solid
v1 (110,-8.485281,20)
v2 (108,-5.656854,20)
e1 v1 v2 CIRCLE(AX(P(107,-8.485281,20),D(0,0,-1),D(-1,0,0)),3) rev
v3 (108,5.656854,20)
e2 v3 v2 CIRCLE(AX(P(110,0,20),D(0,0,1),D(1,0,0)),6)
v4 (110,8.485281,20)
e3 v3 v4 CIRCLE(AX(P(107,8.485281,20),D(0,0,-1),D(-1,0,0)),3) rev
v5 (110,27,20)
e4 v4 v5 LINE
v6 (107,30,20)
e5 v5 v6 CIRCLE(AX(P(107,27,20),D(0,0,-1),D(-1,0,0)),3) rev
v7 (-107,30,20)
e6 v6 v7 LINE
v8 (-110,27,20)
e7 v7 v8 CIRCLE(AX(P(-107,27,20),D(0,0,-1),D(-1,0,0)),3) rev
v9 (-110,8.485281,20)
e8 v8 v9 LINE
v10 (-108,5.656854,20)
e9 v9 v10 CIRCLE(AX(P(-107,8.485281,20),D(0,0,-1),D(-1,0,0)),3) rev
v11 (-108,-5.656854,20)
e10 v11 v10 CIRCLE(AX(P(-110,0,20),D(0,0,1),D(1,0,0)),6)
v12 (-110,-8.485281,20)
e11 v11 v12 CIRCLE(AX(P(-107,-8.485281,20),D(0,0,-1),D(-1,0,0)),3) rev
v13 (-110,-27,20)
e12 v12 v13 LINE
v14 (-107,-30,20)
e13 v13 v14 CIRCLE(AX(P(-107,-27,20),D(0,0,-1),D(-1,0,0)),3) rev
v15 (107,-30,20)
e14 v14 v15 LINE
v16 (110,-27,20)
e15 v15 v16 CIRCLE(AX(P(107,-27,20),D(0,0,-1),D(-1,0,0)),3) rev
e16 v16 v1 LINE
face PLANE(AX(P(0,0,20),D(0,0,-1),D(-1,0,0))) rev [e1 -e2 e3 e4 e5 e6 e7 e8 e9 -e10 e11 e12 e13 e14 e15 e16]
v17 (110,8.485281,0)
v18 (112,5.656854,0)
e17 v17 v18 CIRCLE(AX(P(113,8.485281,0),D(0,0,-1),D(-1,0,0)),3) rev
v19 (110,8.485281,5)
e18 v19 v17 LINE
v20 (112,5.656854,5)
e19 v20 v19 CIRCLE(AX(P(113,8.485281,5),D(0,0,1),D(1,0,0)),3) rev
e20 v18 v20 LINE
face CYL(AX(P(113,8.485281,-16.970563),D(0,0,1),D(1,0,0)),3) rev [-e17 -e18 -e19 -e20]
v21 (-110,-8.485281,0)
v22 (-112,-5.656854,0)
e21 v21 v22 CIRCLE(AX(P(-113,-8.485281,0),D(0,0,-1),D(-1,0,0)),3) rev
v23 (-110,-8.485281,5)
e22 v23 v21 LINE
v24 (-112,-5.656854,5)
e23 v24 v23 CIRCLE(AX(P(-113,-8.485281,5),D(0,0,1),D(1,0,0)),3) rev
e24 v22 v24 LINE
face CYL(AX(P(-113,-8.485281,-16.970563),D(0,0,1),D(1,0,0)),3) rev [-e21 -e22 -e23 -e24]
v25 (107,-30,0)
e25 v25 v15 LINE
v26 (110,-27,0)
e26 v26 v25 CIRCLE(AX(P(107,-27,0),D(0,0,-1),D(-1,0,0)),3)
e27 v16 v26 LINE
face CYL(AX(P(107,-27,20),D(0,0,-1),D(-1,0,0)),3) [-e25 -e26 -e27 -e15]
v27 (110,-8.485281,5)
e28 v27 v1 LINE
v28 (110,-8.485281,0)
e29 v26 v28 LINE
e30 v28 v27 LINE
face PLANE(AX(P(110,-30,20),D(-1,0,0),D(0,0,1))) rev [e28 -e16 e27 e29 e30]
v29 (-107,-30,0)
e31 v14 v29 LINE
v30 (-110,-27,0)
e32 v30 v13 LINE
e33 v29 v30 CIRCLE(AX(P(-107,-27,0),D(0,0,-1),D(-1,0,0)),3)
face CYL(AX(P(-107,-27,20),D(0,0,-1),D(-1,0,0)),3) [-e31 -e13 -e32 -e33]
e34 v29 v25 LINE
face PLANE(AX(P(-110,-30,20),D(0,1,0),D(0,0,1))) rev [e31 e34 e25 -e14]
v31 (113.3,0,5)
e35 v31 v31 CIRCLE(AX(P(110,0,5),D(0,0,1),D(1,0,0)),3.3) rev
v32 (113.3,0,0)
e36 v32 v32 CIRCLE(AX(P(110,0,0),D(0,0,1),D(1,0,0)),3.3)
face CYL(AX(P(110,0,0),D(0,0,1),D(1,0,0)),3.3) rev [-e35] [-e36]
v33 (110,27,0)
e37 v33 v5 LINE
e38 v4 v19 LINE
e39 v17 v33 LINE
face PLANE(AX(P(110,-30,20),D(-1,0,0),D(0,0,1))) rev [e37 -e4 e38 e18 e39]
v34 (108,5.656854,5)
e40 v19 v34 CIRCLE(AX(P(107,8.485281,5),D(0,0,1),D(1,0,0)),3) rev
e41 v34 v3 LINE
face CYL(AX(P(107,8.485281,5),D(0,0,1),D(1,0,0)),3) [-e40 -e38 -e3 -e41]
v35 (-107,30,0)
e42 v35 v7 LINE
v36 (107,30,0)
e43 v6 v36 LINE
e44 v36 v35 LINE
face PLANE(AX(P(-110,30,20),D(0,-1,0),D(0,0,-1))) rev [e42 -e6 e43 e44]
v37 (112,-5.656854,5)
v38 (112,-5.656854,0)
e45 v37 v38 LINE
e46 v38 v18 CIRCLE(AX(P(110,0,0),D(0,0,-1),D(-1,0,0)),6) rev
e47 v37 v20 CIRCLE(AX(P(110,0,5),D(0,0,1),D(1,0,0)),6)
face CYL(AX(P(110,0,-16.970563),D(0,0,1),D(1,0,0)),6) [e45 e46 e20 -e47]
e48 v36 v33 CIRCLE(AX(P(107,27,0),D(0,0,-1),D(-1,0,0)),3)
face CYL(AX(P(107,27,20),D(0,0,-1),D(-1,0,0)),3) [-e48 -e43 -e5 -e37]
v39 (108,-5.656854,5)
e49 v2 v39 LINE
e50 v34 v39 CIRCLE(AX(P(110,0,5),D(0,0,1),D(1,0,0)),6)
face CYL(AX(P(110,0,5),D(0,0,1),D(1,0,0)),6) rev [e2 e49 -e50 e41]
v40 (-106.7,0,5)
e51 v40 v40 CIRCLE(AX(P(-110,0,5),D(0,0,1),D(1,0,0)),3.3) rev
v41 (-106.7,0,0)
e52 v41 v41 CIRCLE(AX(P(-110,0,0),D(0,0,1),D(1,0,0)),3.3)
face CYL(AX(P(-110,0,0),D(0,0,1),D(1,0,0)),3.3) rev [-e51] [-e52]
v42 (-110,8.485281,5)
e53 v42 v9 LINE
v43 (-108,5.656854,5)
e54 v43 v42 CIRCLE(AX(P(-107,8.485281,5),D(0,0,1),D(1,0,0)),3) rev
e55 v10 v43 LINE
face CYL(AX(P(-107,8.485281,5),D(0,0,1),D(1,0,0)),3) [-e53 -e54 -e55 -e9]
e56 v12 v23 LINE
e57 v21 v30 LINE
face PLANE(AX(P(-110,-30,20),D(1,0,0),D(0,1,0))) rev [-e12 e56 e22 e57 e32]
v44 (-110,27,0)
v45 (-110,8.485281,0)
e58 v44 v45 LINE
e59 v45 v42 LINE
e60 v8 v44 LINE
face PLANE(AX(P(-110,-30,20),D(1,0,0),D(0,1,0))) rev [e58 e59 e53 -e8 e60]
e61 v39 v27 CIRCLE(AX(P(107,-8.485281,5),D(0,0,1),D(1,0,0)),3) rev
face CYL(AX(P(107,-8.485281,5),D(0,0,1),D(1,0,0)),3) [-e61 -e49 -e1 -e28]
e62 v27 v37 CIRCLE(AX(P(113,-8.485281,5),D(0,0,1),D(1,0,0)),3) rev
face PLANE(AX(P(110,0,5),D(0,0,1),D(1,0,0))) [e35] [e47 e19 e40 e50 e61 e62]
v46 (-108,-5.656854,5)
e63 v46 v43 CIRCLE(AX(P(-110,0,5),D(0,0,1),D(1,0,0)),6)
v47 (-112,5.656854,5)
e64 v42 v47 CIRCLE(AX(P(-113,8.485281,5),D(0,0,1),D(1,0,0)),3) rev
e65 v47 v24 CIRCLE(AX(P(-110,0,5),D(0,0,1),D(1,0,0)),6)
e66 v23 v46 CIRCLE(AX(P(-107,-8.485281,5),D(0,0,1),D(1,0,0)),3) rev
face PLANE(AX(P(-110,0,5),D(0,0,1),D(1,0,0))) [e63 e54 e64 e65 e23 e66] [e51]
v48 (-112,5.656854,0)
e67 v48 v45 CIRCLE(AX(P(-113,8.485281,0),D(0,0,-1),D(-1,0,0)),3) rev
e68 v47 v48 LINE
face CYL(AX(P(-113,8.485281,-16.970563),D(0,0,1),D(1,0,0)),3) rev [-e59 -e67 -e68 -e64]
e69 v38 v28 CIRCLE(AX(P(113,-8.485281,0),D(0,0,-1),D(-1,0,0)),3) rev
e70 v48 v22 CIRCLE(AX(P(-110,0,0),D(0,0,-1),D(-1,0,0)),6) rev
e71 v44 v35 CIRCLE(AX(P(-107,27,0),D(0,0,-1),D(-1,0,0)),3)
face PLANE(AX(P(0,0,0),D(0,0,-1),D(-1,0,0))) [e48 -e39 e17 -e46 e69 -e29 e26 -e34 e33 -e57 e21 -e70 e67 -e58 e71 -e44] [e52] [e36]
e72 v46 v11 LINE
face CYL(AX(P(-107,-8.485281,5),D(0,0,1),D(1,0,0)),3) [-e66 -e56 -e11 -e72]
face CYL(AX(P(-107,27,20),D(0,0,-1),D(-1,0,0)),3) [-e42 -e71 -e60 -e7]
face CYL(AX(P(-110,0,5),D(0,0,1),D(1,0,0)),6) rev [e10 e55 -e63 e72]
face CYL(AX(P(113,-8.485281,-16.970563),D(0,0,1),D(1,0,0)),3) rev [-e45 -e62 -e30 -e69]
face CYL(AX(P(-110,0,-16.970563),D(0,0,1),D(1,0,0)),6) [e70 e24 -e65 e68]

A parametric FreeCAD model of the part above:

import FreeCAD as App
import Part
import Sketcher

V = App.Vector
Q = App.Units.Quantity


def edges_at(feature, points):
    """Names of the edges that pass closest to the given points."""
    edges = feature.Shape.Edges
    near = lambda p: min(range(len(edges)), key=lambda i: edges[i].distToShape(Part.Vertex(*p))[0])
    return sorted({f"Edge{near(p) + 1}" for p in points})


def add_polygon(sketch, points):
    """Adds a closed chain of lines whose ends are joined by coincident constraints."""
    first, n = sketch.GeometryCount, len(points)
    for a, b in zip(points, points[1:] + points[:1]):
        sketch.addGeometry(Part.LineSegment(App.Vector(*a, 0), App.Vector(*b, 0)), False)
    for i in range(n):
        sketch.addConstraint(Sketcher.Constraint("Coincident", first + i, 2, first + (i + 1) % n, 1))

doc = App.newDocument("Part")
body = doc.addObject("PartDesign::Body", "Body")

# Sketch on XY plane
sketch1 = doc.addObject("Sketcher::SketchObject", "Sketch")
body.addObject(sketch1)
sketch1.AttachmentSupport = (doc.XY_Plane, [""])
sketch1.MapMode = "FlatFace"
add_polygon(sketch1, [(-110, 30), (-110, -30), (110, -30), (110, 30)])  # lines 0-3
sketch1.addConstraint([
    Sketcher.Constraint("Vertical", 0),
    Sketcher.Constraint("Horizontal", 1),
    Sketcher.Constraint("Vertical", 2),
    Sketcher.Constraint("Horizontal", 3),
    Sketcher.Constraint("Symmetric", 0, 2, 2, 2, -1, 1),
    Sketcher.Constraint("DistanceX", 1, 1, 1, 2, Q("220 mm")),
    Sketcher.Constraint("DistanceY", 0, 2, 0, 1, Q("60 mm")),
])
pad1 = doc.addObject("PartDesign::Pad", "Pad")
body.addObject(pad1)
pad1.Profile = sketch1
pad1.Length = 20
doc.recompute()

fillet = doc.addObject("PartDesign::Fillet", "Fillet")
body.addObject(fillet)
fillet.Base = (pad1, edges_at(pad1, [
    (110, -30, 10),
    (-110, -30, 10),
    (-110, 30, 10),
    (110, 30, 10),
]))
fillet.Radius = 3

# Sketch on XY plane
sketch2 = doc.addObject("Sketcher::SketchObject", "Sketch001")
body.addObject(sketch2)
sketch2.AttachmentSupport = (doc.XY_Plane, [""])
sketch2.MapMode = "FlatFace"
sketch2.AttachmentOffset = App.Placement(V(0, 0, 20), App.Rotation())
sketch2.addGeometry([
    Part.Circle(V(-110, 0, 0), V(0, 0, 1), 6),
    Part.Circle(V(110, 0, 0), V(0, 0, 1), 6),
], False)
sketch2.addConstraint([
    Sketcher.Constraint("Equal", 0, 1),
    Sketcher.Constraint("Symmetric", 0, 3, 1, 3, -1, 1),
    Sketcher.Constraint("PointOnObject", 0, 3, -1),
    Sketcher.Constraint("Diameter", 0, Q("12 mm")),
    Sketcher.Constraint("DistanceX", 0, 3, -1, 1, Q("110 mm")),
])
pad2 = doc.addObject("PartDesign::Pad", "Pad001")
body.addObject(pad2)
pad2.Profile = sketch2
pad2.Length = 20
pad2.Reversed = True

# Sketch on XY plane
sketch3 = doc.addObject("Sketcher::SketchObject", "Sketch002")
body.addObject(sketch3)
sketch3.AttachmentSupport = (doc.XY_Plane, [""])
sketch3.MapMode = "FlatFace"
sketch3.AttachmentOffset = App.Placement(V(0, 0, 20), App.Rotation())
sketch3.addGeometry([
    Part.Circle(V(-110, 0, 0), V(0, 0, 1), 3.3),
    Part.Circle(V(110, 0, 0), V(0, 0, 1), 3.3),
], False)
sketch3.addConstraint([
    Sketcher.Constraint("Equal", 0, 1),
    Sketcher.Constraint("Symmetric", 0, 3, 1, 3, -1, 1),
    Sketcher.Constraint("PointOnObject", 0, 3, -1),
    Sketcher.Constraint("Diameter", 0, Q("6.6 mm")),
    Sketcher.Constraint("DistanceX", 0, 3, -1, 1, Q("110 mm")),
])
pocket1 = doc.addObject("PartDesign::Pocket", "Pocket")
body.addObject(pocket1)
pocket1.Profile = sketch3
pocket1.Length = 20

# Sketch on XY plane
sketch4 = doc.addObject("Sketcher::SketchObject", "Sketch003")
body.addObject(sketch4)
sketch4.AttachmentSupport = (doc.XY_Plane, [""])
sketch4.MapMode = "FlatFace"
sketch4.AttachmentOffset = App.Placement(V(0, 0, 20), App.Rotation())
sketch4.addGeometry([
    Part.Circle(V(-110, 0, 0), V(0, 0, 1), 6),
    Part.Circle(V(110, 0, 0), V(0, 0, 1), 6),
], False)
sketch4.addConstraint([
    Sketcher.Constraint("Equal", 0, 1),
    Sketcher.Constraint("Symmetric", 0, 3, 1, 3, -1, 1),
    Sketcher.Constraint("PointOnObject", 0, 3, -1),
    Sketcher.Constraint("Diameter", 0, Q("12 mm")),
    Sketcher.Constraint("DistanceX", 0, 3, -1, 1, Q("110 mm")),
])
pocket2 = doc.addObject("PartDesign::Pocket", "Pocket001")
body.addObject(pocket2)
pocket2.Profile = sketch4
pocket2.Length = 15
doc.recompute()

fillet2 = doc.addObject("PartDesign::Fillet", "Fillet001")
body.addObject(fillet2)
fillet2.Base = (pocket2, edges_at(pocket2, [(-110, 6, 2.5), (-110, -6, 2.5)]))
fillet2.Radius = 3
doc.recompute()

fillet3 = doc.addObject("PartDesign::Fillet", "Fillet002")
body.addObject(fillet3)
fillet3.Base = (fillet2, edges_at(fillet2, [(-110, 6, 12.5)]))
fillet3.Radius = 3
doc.recompute()

fillet4 = doc.addObject("PartDesign::Fillet", "Fillet003")
body.addObject(fillet4)
fillet4.Base = (fillet3, edges_at(fillet3, [(-110, -6, 12.5)]))
fillet4.Radius = 3
doc.recompute()

fillet5 = doc.addObject("PartDesign::Fillet", "Fillet004")
body.addObject(fillet5)
fillet5.Base = (fillet4, edges_at(fillet4, [(110, -6, 2.5), (110, 6, 2.5)]))
fillet5.Radius = 3
doc.recompute()

fillet6 = doc.addObject("PartDesign::Fillet", "Fillet005")
body.addObject(fillet6)
fillet6.Base = (fillet5, edges_at(fillet5, [(110, 6, 12.5), (110, -6, 12.5)]))
fillet6.Radius = 3

doc.recompute()
